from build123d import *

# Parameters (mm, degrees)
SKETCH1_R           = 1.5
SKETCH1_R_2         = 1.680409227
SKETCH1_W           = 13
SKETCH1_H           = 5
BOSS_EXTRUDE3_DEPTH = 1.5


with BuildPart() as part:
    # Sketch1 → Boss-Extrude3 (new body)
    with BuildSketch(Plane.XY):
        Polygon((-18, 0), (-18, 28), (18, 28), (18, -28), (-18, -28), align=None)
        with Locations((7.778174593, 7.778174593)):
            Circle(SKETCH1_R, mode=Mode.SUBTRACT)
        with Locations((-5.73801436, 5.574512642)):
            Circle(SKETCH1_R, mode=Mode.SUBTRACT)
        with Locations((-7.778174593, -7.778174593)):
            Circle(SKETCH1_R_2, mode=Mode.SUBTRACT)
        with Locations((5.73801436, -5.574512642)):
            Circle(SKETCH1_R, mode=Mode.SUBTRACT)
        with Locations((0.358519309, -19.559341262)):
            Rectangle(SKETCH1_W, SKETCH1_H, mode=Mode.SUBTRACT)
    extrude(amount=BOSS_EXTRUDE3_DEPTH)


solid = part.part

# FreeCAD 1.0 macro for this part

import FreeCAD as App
import Part
import Sketcher
from FreeCAD import Vector


def add_polygon(sketch, points):
    """Adds a closed chain of lines whose ends are joined by coincident constraints."""
    first, n = sketch.GeometryCount, len(points)
    for a, b in zip(points, points[1:] + points[:1]):
        sketch.addGeometry(Part.LineSegment(App.Vector(*a, 0), App.Vector(*b, 0)), False)
    for i in range(n):
        sketch.addConstraint(Sketcher.Constraint("Coincident", first + i, 2, first + (i + 1) % n, 1))

doc = App.newDocument("Part")
body = doc.addObject("PartDesign::Body", "Body")

sketch1 = body.newObject("Sketcher::SketchObject", "Sketch")
sketch1.AttachmentSupport = (doc.getObject("XY_Plane"), [""])
sketch1.MapMode = "FlatFace"
add_polygon(sketch1, [(-18, 28), (-18, -28), (18, -28), (18, 28)])
add_polygon(sketch1, [(-6.1, -22.1), (-6.1, -17.1), (6.9, -17.1), (6.9, -22.1)])
sketch1.addGeometry(Part.Circle(Vector(-7.8, -7.8, 0), Vector(0, 0, 1), 1.7), False)
sketch1.addGeometry(Part.Circle(Vector(5.7, -5.6, 0), Vector(0, 0, 1), 1.5), False)
sketch1.addGeometry(Part.Circle(Vector(7.8, 7.8, 0), Vector(0, 0, 1), 1.5), False)
sketch1.addGeometry(Part.Circle(Vector(-5.7, 5.6, 0), Vector(0, 0, 1), 1.5), False)
sketch1.addConstraint(Sketcher.Constraint("Vertical", 0))
sketch1.addConstraint(Sketcher.Constraint("Horizontal", 1))
sketch1.addConstraint(Sketcher.Constraint("Vertical", 2))
sketch1.addConstraint(Sketcher.Constraint("Horizontal", 3))
sketch1.addConstraint(Sketcher.Constraint("Vertical", 4))
sketch1.addConstraint(Sketcher.Constraint("Horizontal", 5))
sketch1.addConstraint(Sketcher.Constraint("Vertical", 6))
sketch1.addConstraint(Sketcher.Constraint("Horizontal", 7))
sketch1.addConstraint(Sketcher.Constraint("Equal", 9, 10))
sketch1.addConstraint(Sketcher.Constraint("Equal", 10, 11))
sketch1.addConstraint(Sketcher.Constraint("Symmetric", 8, 3, 10, 3, -1, 1))
sketch1.addConstraint(Sketcher.Constraint("Symmetric", 9, 3, 11, 3, -1, 1))
sketch1.addConstraint(Sketcher.Constraint("Symmetric", 0, 2, 2, 2, -1, 1))
sketch1.addConstraint(Sketcher.Constraint("Diameter", 9, 3.0))
sketch1.addConstraint(Sketcher.Constraint("DistanceX", 1, 1, 1, 2, 36.0))
sketch1.addConstraint(Sketcher.Constraint("DistanceX", 5, 1, 5, 2, 13.0))
sketch1.addConstraint(Sketcher.Constraint("DistanceY", 0, 2, 0, 1, 56.0))
sketch1.addConstraint(Sketcher.Constraint("DistanceY", 4, 1, 4, 2, 5.0))
sketch1.addConstraint(Sketcher.Constraint("Diameter", 8, 3.360818))
sketch1.addConstraint(Sketcher.Constraint("DistanceX", 4, 2, -1, 1, 6.141481))
sketch1.addConstraint(Sketcher.Constraint("DistanceY", 4, 2, -1, 1, 17.059341))
sketch1.addConstraint(Sketcher.Constraint("DistanceX", 8, 3, 9, 3, 13.516189))
sketch1.addConstraint(Sketcher.Constraint("DistanceY", 8, 3, 9, 3, 2.203662))
sketch1.addConstraint(Sketcher.Constraint("DistanceX", 9, 3, 10, 3, 2.04016))
sketch1.addConstraint(Sketcher.Constraint("DistanceY", 8, 3, 10, 3, 15.556349))
pad1 = body.newObject("PartDesign::Pad", "Pad")
pad1.Profile = sketch1
pad1.Length = 1.5

doc.recompute()
